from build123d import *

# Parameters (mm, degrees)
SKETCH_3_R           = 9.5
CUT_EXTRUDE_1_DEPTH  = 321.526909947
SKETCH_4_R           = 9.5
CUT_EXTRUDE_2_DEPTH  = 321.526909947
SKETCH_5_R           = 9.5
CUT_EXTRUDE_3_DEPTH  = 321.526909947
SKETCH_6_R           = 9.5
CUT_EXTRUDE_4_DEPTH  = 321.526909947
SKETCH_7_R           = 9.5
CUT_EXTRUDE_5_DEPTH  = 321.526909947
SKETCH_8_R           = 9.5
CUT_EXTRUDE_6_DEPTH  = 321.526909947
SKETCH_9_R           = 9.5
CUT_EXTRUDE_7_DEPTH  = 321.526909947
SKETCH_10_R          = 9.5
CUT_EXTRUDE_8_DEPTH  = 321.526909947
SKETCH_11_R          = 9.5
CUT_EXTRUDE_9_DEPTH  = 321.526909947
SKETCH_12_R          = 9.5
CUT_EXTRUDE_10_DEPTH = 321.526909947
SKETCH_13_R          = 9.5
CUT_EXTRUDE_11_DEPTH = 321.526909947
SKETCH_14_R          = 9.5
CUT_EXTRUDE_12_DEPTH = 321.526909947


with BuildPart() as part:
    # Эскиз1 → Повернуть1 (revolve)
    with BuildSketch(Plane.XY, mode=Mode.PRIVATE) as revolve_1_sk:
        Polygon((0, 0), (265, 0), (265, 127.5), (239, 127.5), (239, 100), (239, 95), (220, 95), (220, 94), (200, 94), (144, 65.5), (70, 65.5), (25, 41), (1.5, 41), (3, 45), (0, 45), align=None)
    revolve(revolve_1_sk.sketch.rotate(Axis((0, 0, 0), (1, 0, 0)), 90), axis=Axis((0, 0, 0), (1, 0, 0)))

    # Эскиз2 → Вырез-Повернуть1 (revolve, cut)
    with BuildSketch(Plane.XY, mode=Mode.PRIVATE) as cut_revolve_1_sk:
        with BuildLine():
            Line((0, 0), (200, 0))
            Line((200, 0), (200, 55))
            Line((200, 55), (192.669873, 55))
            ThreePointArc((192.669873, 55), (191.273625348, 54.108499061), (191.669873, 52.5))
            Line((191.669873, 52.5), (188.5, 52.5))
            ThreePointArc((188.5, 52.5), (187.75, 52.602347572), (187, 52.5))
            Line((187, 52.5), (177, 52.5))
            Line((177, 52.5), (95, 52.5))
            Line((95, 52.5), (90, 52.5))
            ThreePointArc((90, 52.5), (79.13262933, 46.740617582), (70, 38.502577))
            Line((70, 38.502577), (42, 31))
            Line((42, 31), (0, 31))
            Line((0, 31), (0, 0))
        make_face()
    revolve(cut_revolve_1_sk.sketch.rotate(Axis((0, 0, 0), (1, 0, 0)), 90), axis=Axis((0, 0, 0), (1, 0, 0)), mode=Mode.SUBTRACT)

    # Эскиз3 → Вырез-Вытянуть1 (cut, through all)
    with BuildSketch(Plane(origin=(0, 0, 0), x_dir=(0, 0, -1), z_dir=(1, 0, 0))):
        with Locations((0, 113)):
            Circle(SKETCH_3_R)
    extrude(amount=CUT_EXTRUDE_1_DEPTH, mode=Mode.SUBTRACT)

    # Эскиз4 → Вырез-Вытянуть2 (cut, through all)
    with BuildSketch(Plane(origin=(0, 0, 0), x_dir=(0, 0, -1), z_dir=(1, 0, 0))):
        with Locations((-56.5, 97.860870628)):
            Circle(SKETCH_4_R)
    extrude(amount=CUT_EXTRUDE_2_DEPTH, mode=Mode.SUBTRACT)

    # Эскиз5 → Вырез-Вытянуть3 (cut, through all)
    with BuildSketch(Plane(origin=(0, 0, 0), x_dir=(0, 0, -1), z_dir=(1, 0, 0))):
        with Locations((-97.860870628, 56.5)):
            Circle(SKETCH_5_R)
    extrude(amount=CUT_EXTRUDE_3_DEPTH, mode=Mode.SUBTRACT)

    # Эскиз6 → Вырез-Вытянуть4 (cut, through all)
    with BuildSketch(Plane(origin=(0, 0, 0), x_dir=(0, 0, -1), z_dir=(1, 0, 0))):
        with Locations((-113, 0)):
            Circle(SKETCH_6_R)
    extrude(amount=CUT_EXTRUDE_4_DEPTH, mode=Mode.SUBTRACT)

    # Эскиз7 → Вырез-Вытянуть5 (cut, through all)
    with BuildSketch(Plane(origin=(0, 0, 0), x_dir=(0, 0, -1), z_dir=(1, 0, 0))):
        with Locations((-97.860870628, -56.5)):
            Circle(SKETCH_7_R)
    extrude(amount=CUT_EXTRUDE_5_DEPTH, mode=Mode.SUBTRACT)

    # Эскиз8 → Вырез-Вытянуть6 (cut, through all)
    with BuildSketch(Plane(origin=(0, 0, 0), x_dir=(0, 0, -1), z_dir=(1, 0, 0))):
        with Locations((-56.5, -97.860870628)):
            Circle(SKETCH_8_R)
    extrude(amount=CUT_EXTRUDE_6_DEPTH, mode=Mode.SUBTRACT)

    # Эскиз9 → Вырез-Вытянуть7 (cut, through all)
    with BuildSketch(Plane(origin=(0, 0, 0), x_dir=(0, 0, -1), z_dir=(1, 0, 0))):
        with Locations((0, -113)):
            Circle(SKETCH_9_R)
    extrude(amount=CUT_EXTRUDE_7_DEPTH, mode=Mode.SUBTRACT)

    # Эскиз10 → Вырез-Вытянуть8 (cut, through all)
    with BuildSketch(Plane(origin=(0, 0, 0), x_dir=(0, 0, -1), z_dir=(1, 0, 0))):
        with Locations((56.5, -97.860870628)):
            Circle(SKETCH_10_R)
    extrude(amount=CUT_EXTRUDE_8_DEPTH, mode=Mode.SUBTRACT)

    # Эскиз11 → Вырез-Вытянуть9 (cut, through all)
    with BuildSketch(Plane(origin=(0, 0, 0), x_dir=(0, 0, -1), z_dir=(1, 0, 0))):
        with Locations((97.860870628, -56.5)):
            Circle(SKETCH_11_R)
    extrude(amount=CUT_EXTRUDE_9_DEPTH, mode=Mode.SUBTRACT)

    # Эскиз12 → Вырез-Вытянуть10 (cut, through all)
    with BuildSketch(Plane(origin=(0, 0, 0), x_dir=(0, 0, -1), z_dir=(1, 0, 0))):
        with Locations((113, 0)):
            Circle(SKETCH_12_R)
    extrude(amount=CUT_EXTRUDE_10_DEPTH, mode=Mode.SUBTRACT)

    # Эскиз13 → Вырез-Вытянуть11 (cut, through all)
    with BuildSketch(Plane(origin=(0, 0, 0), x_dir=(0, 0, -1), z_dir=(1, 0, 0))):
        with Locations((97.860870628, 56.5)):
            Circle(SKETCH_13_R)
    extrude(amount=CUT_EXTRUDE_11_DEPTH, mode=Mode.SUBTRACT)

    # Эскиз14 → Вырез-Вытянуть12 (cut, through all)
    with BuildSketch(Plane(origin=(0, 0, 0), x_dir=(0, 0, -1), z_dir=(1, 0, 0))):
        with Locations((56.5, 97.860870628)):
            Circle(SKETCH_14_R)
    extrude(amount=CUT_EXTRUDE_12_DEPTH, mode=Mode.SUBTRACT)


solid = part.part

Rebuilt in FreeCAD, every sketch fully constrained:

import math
import FreeCAD as App
import Part
import Sketcher

V = App.Vector
Q = App.Units.Quantity


def add_polygon(sketch, points):
    """Adds a closed chain of lines whose ends are joined by coincident constraints."""
    first, n = sketch.GeometryCount, len(points)
    for a, b in zip(points, points[1:] + points[:1]):
        sketch.addGeometry(Part.LineSegment(App.Vector(*a, 0), App.Vector(*b, 0)), False)
    for i in range(n):
        sketch.addConstraint(Sketcher.Constraint("Coincident", first + i, 2, first + (i + 1) % n, 1))

doc = App.newDocument("Part")
body = doc.addObject("PartDesign::Body", "Body")

# Sketch on XY plane
sketch1 = doc.addObject("Sketcher::SketchObject", "Sketch")
body.addObject(sketch1)
sketch1.AttachmentSupport = (doc.XY_Plane, [""])
sketch1.MapMode = "FlatFace"
add_polygon(sketch1, [(0, 0), (265, 0), (265, 127.5), (239, 127.5), (239, 95), (220, 95), (220, 94), (200, 94), (144, 65.5), (70, 65.5), (25, 41), (1.5, 41), (3, 45), (0, 45)])  # lines 0-13
sketch1.addConstraint(Sketcher.Constraint("Horizontal", 0))
sketch1.addConstraint(Sketcher.Constraint("Vertical", 1))
sketch1.addConstraint(Sketcher.Constraint("Horizontal", 2))
sketch1.addConstraint(Sketcher.Constraint("Vertical", 3))
sketch1.addConstraint(Sketcher.Constraint("Horizontal", 4))
sketch1.addConstraint(Sketcher.Constraint("Vertical", 5))
sketch1.addConstraint(Sketcher.Constraint("Horizontal", 6))
sketch1.addConstraint(Sketcher.Constraint("Horizontal", 8))
sketch1.addConstraint(Sketcher.Constraint("Horizontal", 10))
sketch1.addConstraint(Sketcher.Constraint("Horizontal", 12))
sketch1.addConstraint(Sketcher.Constraint("Vertical", 13))
sketch1.addConstraint(Sketcher.Constraint("Coincident", 13, 2, -1, 1))
sketch1.addConstraint(Sketcher.Constraint("DistanceX", 0, 1, 0, 2, 265.0))
sketch1.addConstraint(Sketcher.Constraint("DistanceX", 2, 2, 2, 1, 26.0))
sketch1.addConstraint(Sketcher.Constraint("DistanceX", 4, 2, 4, 1, 19.0))
sketch1.addConstraint(Sketcher.Constraint("DistanceX", 6, 2, 6, 1, 20.0))
sketch1.addConstraint(Sketcher.Constraint("DistanceX", 8, 2, 8, 1, 74.0))
sketch1.addConstraint(Sketcher.Constraint("DistanceX", 12, 2, 12, 1, 3.0))
sketch1.addConstraint(Sketcher.Constraint("DistanceY", 5, 2, 5, 1, 1.0))
sketch1.addConstraint(Sketcher.Constraint("DistanceY", 13, 2, 13, 1, 45.0))
sketch1.addConstraint(Sketcher.Constraint("DistanceX", 10, 2, 10, 1, 23.5))
sketch1.addConstraint(Sketcher.Constraint("DistanceY", 1, 1, 1, 2, 127.5))
sketch1.addConstraint(Sketcher.Constraint("DistanceY", 3, 2, 3, 1, 32.5))
sketch1.addConstraint(Sketcher.Constraint("DistanceX", -1, 1, 7, 2, 144.0))
sketch1.addConstraint(Sketcher.Constraint("DistanceX", -1, 1, 9, 2, 25.0))
sketch1.addConstraint(Sketcher.Constraint("DistanceY", -1, 1, 9, 2, 41.0))
sketch1.addConstraint(Sketcher.Constraint("DistanceY", 7, 2, 2, 2, 62.0))
revolution = doc.addObject("PartDesign::Revolution", "Revolution")
body.addObject(revolution)
revolution.Profile = sketch1
revolution.ReferenceAxis = (sketch1, ["H_Axis"])
revolution.Angle = 360

# Sketch on XY plane
sketch2 = doc.addObject("Sketcher::SketchObject", "Sketch001")
body.addObject(sketch2)
sketch2.AttachmentSupport = (doc.XY_Plane, [""])
sketch2.MapMode = "FlatFace"
sketch2.addGeometry(Part.LineSegment(V(0, 0, 0), V(200, 0, 0)), False)
sketch2.addGeometry(Part.LineSegment(V(200, 0, 0), V(200, 55, 0)), False)
sketch2.addGeometry(Part.LineSegment(V(200, 55, 0), V(192.669873, 55, 0)), False)
sketch2.addGeometry(Part.ArcOfCircle(Part.Circle(V(192.593439, 53.580574, 0), V(0, 0, 1), 1.421483), math.radians(86.917686), math.radians(229.479495)), False)
sketch2.addGeometry(Part.LineSegment(V(191.669873, 52.5, 0), V(188.5, 52.5, 0)), False)
sketch2.addGeometry(Part.ArcOfCircle(Part.Circle(V(187.75, 49.803185, 0), V(0, 0, 1), 2.799163), math.radians(74.458441), math.radians(105.541559)), False)
sketch2.addGeometry(Part.LineSegment(V(187, 52.5, 0), V(90, 52.5, 0)), False)
sketch2.addGeometry(Part.ArcOfCircle(Part.Circle(V(107.802203, 5.776544, 0), V(0, 0, 1), 49.999998), math.radians(110.857447), math.radians(139.116684)), False)
sketch2.addGeometry(Part.LineSegment(V(70, 38.502577, 0), V(42, 31, 0)), False)
sketch2.addGeometry(Part.LineSegment(V(42, 31, 0), V(0, 31, 0)), False)
sketch2.addGeometry(Part.LineSegment(V(0, 31, 0), V(0, 0, 0)), False)
sketch2.addConstraint(Sketcher.Constraint("Coincident", 0, 2, 1, 1))
sketch2.addConstraint(Sketcher.Constraint("Coincident", 1, 2, 2, 1))
sketch2.addConstraint(Sketcher.Constraint("Coincident", 2, 2, 3, 1))
sketch2.addConstraint(Sketcher.Constraint("Coincident", 3, 2, 4, 1))
sketch2.addConstraint(Sketcher.Constraint("Coincident", 4, 2, 5, 1))
sketch2.addConstraint(Sketcher.Constraint("Coincident", 5, 2, 6, 1))
sketch2.addConstraint(Sketcher.Constraint("Coincident", 6, 2, 7, 1))
sketch2.addConstraint(Sketcher.Constraint("Coincident", 7, 2, 8, 1))
sketch2.addConstraint(Sketcher.Constraint("Coincident", 8, 2, 9, 1))
sketch2.addConstraint(Sketcher.Constraint("Coincident", 9, 2, 10, 1))
sketch2.addConstraint(Sketcher.Constraint("Coincident", 10, 2, 0, 1))
sketch2.addConstraint(Sketcher.Constraint("Horizontal", 0))
sketch2.addConstraint(Sketcher.Constraint("Vertical", 1))
sketch2.addConstraint(Sketcher.Constraint("Horizontal", 2))
sketch2.addConstraint(Sketcher.Constraint("Horizontal", 4))
sketch2.addConstraint(Sketcher.Constraint("Horizontal", 6))
sketch2.addConstraint(Sketcher.Constraint("Horizontal", 9))
sketch2.addConstraint(Sketcher.Constraint("Vertical", 10))
sketch2.addConstraint(Sketcher.Constraint("Coincident", 10, 2, -1, 1))
sketch2.addConstraint(Sketcher.Constraint("Horizontal", 4, 2, 5, 2))
sketch2.addConstraint(Sketcher.Constraint("Radius", 7, 49.999998))
sketch2.addConstraint(Sketcher.Constraint("DistanceX", 0, 1, 0, 2, 200.0))
sketch2.addConstraint(Sketcher.Constraint("DistanceX", 6, 2, 6, 1, 97.0))
sketch2.addConstraint(Sketcher.Constraint("DistanceX", 9, 2, 9, 1, 42.0))
sketch2.addConstraint(Sketcher.Constraint("DistanceY", 1, 1, 1, 2, 55.0))
sketch2.addConstraint(Sketcher.Constraint("DistanceY", 10, 2, 10, 1, 31.0))
sketch2.addConstraint(Sketcher.Constraint("Angle", 8, Q("-165.000001 deg")))
sketch2.addConstraint(Sketcher.Constraint("DistanceX", -1, 1, 5, 2, 187.0))
sketch2.addConstraint(Sketcher.Constraint("DistanceX", -1, 1, 7, 2, 70.0))
sketch2.addConstraint(Sketcher.Constraint("DistanceX", 3, 2, 2, 2, 1.0))
sketch2.addConstraint(Sketcher.Constraint("DistanceY", -1, 1, 3, 2, 52.5))
sketch2.addConstraint(Sketcher.Constraint("DistanceX", -1, 1, 4, 2, 188.5))
sketch2.addConstraint(Sketcher.Constraint("Radius", 3, 1.421483))
sketch2.addConstraint(Sketcher.Constraint("Radius", 5, 2.799163))
sketch2.addConstraint(Sketcher.Constraint("DistanceX", 2, 2, 2, 1, 7.330127))
groove = doc.addObject("PartDesign::Groove", "Groove")
body.addObject(groove)
groove.Profile = sketch2
groove.ReferenceAxis = (sketch2, ["H_Axis"])
groove.Angle = 360

# Sketch on YZ plane
sketch3 = doc.addObject("Sketcher::SketchObject", "Sketch002")
body.addObject(sketch3)
sketch3.AttachmentSupport = (doc.YZ_Plane, [""])
sketch3.MapMode = "FlatFace"
sketch3.addGeometry(Part.Circle(V(113, 0, 0), V(0, 0, 1), 9.5), False)
sketch3.addConstraint(Sketcher.Constraint("PointOnObject", 0, 3, -1))
sketch3.addConstraint(Sketcher.Constraint("Diameter", 0, 19.0))
sketch3.addConstraint(Sketcher.Constraint("DistanceX", -1, 1, 0, 3, 113.0))
pocket1 = doc.addObject("PartDesign::Pocket", "Pocket")
body.addObject(pocket1)
pocket1.Profile = sketch3
pocket1.Type = "ThroughAll"
pocket1.Reversed = True

# Sketch on YZ plane
sketch4 = doc.addObject("Sketcher::SketchObject", "Sketch003")
body.addObject(sketch4)
sketch4.AttachmentSupport = (doc.YZ_Plane, [""])
sketch4.MapMode = "FlatFace"
sketch4.addGeometry(Part.Circle(V(97.860871, 56.5, 0), V(0, 0, 1), 9.5), False)
sketch4.addConstraint(Sketcher.Constraint("Diameter", 0, 19.0))
sketch4.addConstraint(Sketcher.Constraint("DistanceY", -1, 1, 0, 3, 56.5))
sketch4.addConstraint(Sketcher.Constraint("DistanceX", -1, 1, 0, 3, 97.860871))
pocket2 = doc.addObject("PartDesign::Pocket", "Pocket001")
body.addObject(pocket2)
pocket2.Profile = sketch4
pocket2.Type = "ThroughAll"
pocket2.Reversed = True

# Sketch on YZ plane
sketch5 = doc.addObject("Sketcher::SketchObject", "Sketch004")
body.addObject(sketch5)
sketch5.AttachmentSupport = (doc.YZ_Plane, [""])
sketch5.MapMode = "FlatFace"
sketch5.addGeometry(Part.Circle(V(56.5, 97.860871, 0), V(0, 0, 1), 9.5), False)
sketch5.addConstraint(Sketcher.Constraint("Diameter", 0, 19.0))
sketch5.addConstraint(Sketcher.Constraint("DistanceX", -1, 1, 0, 3, 56.5))
sketch5.addConstraint(Sketcher.Constraint("DistanceY", -1, 1, 0, 3, 97.860871))
pocket3 = doc.addObject("PartDesign::Pocket", "Pocket002")
body.addObject(pocket3)
pocket3.Profile = sketch5
pocket3.Type = "ThroughAll"
pocket3.Reversed = True

# Sketch on YZ plane
sketch6 = doc.addObject("Sketcher::SketchObject", "Sketch005")
body.addObject(sketch6)
sketch6.AttachmentSupport = (doc.YZ_Plane, [""])
sketch6.MapMode = "FlatFace"
sketch6.addGeometry(Part.Circle(V(0, 113, 0), V(0, 0, 1), 9.5), False)
sketch6.addConstraint(Sketcher.Constraint("PointOnObject", 0, 3, -2))
sketch6.addConstraint(Sketcher.Constraint("Diameter", 0, 19.0))
sketch6.addConstraint(Sketcher.Constraint("DistanceY", -1, 1, 0, 3, 113.0))
pocket4 = doc.addObject("PartDesign::Pocket", "Pocket003")
body.addObject(pocket4)
pocket4.Profile = sketch6
pocket4.Type = "ThroughAll"
pocket4.Reversed = True

# Sketch on YZ plane
sketch7 = doc.addObject("Sketcher::SketchObject", "Sketch006")
body.addObject(sketch7)
sketch7.AttachmentSupport = (doc.YZ_Plane, [""])
sketch7.MapMode = "FlatFace"
sketch7.addGeometry(Part.Circle(V(-56.5, 97.860871, 0), V(0, 0, 1), 9.5), False)
sketch7.addConstraint(Sketcher.Constraint("Diameter", 0, 19.0))
sketch7.addConstraint(Sketcher.Constraint("DistanceX", 0, 3, -1, 1, 56.5))
sketch7.addConstraint(Sketcher.Constraint("DistanceY", -1, 1, 0, 3, 97.860871))
pocket5 = doc.addObject("PartDesign::Pocket", "Pocket004")
body.addObject(pocket5)
pocket5.Profile = sketch7
pocket5.Type = "ThroughAll"
pocket5.Reversed = True

# Sketch on YZ plane
sketch8 = doc.addObject("Sketcher::SketchObject", "Sketch007")
body.addObject(sketch8)
sketch8.AttachmentSupport = (doc.YZ_Plane, [""])
sketch8.MapMode = "FlatFace"
sketch8.addGeometry(Part.Circle(V(-97.860871, 56.5, 0), V(0, 0, 1), 9.5), False)
sketch8.addConstraint(Sketcher.Constraint("Diameter", 0, 19.0))
sketch8.addConstraint(Sketcher.Constraint("DistanceY", -1, 1, 0, 3, 56.5))
sketch8.addConstraint(Sketcher.Constraint("DistanceX", 0, 3, -1, 1, 97.860871))
pocket6 = doc.addObject("PartDesign::Pocket", "Pocket005")
body.addObject(pocket6)
pocket6.Profile = sketch8
pocket6.Type = "ThroughAll"
pocket6.Reversed = True

# Sketch on YZ plane
sketch9 = doc.addObject("Sketcher::SketchObject", "Sketch008")
body.addObject(sketch9)
sketch9.AttachmentSupport = (doc.YZ_Plane, [""])
sketch9.MapMode = "FlatFace"
sketch9.addGeometry(Part.Circle(V(-113, 0, 0), V(0, 0, 1), 9.5), False)
sketch9.addConstraint(Sketcher.Constraint("PointOnObject", 0, 3, -1))
sketch9.addConstraint(Sketcher.Constraint("Diameter", 0, 19.0))
sketch9.addConstraint(Sketcher.Constraint("DistanceX", 0, 3, -1, 1, 113.0))
pocket7 = doc.addObject("PartDesign::Pocket", "Pocket006")
body.addObject(pocket7)
pocket7.Profile = sketch9
pocket7.Type = "ThroughAll"
pocket7.Reversed = True

# Sketch on YZ plane
sketch10 = doc.addObject("Sketcher::SketchObject", "Sketch009")
body.addObject(sketch10)
sketch10.AttachmentSupport = (doc.YZ_Plane, [""])
sketch10.MapMode = "FlatFace"
sketch10.addGeometry(Part.Circle(V(-97.860871, -56.5, 0), V(0, 0, 1), 9.5), False)
sketch10.addConstraint(Sketcher.Constraint("Diameter", 0, 19.0))
sketch10.addConstraint(Sketcher.Constraint("DistanceY", 0, 3, -1, 1, 56.5))
sketch10.addConstraint(Sketcher.Constraint("DistanceX", 0, 3, -1, 1, 97.860871))
pocket8 = doc.addObject("PartDesign::Pocket", "Pocket007")
body.addObject(pocket8)
pocket8.Profile = sketch10
pocket8.Type = "ThroughAll"
pocket8.Reversed = True

# Sketch on YZ plane
sketch11 = doc.addObject("Sketcher::SketchObject", "Sketch010")
body.addObject(sketch11)
sketch11.AttachmentSupport = (doc.YZ_Plane, [""])
sketch11.MapMode = "FlatFace"
sketch11.addGeometry(Part.Circle(V(-56.5, -97.860871, 0), V(0, 0, 1), 9.5), False)
sketch11.addConstraint(Sketcher.Constraint("Diameter", 0, 19.0))
sketch11.addConstraint(Sketcher.Constraint("DistanceX", 0, 3, -1, 1, 56.5))
sketch11.addConstraint(Sketcher.Constraint("DistanceY", 0, 3, -1, 1, 97.860871))
pocket9 = doc.addObject("PartDesign::Pocket", "Pocket008")
body.addObject(pocket9)
pocket9.Profile = sketch11
pocket9.Type = "ThroughAll"
pocket9.Reversed = True

# Sketch on YZ plane
sketch12 = doc.addObject("Sketcher::SketchObject", "Sketch011")
body.addObject(sketch12)
sketch12.AttachmentSupport = (doc.YZ_Plane, [""])
sketch12.MapMode = "FlatFace"
sketch12.addGeometry(Part.Circle(V(0, -113, 0), V(0, 0, 1), 9.5), False)
sketch12.addConstraint(Sketcher.Constraint("PointOnObject", 0, 3, -2))
sketch12.addConstraint(Sketcher.Constraint("Diameter", 0, 19.0))
sketch12.addConstraint(Sketcher.Constraint("DistanceY", 0, 3, -1, 1, 113.0))
pocket10 = doc.addObject("PartDesign::Pocket", "Pocket009")
body.addObject(pocket10)
pocket10.Profile = sketch12
pocket10.Type = "ThroughAll"
pocket10.Reversed = True

# Sketch on YZ plane
sketch13 = doc.addObject("Sketcher::SketchObject", "Sketch012")
body.addObject(sketch13)
sketch13.AttachmentSupport = (doc.YZ_Plane, [""])
sketch13.MapMode = "FlatFace"
sketch13.addGeometry(Part.Circle(V(56.5, -97.860871, 0), V(0, 0, 1), 9.5), False)
sketch13.addConstraint(Sketcher.Constraint("Diameter", 0, 19.0))
sketch13.addConstraint(Sketcher.Constraint("DistanceX", -1, 1, 0, 3, 56.5))
sketch13.addConstraint(Sketcher.Constraint("DistanceY", 0, 3, -1, 1, 97.860871))
pocket11 = doc.addObject("PartDesign::Pocket", "Pocket010")
body.addObject(pocket11)
pocket11.Profile = sketch13
pocket11.Type = "ThroughAll"
pocket11.Reversed = True

# Sketch on YZ plane
sketch14 = doc.addObject("Sketcher::SketchObject", "Sketch013")
body.addObject(sketch14)
sketch14.AttachmentSupport = (doc.YZ_Plane, [""])
sketch14.MapMode = "FlatFace"
sketch14.addGeometry(Part.Circle(V(97.860871, -56.5, 0), V(0, 0, 1), 9.5), False)
sketch14.addConstraint(Sketcher.Constraint("Diameter", 0, 19.0))
sketch14.addConstraint(Sketcher.Constraint("DistanceY", 0, 3, -1, 1, 56.5))
sketch14.addConstraint(Sketcher.Constraint("DistanceX", -1, 1, 0, 3, 97.860871))
pocket12 = doc.addObject("PartDesign::Pocket", "Pocket011")
body.addObject(pocket12)
pocket12.Profile = sketch14
pocket12.Type = "ThroughAll"
pocket12.Reversed = True

doc.recompute()
